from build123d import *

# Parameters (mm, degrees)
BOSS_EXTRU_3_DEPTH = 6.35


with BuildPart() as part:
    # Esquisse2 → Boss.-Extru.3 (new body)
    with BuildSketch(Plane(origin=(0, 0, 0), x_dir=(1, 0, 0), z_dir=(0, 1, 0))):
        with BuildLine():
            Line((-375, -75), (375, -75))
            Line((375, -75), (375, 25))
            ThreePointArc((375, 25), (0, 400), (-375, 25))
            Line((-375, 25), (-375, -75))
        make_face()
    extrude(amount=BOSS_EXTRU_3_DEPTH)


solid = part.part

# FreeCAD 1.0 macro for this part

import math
import FreeCAD as App
import Part
import Sketcher
from FreeCAD import Vector

doc = App.newDocument("Part")
params = doc.addObject("Spreadsheet::Sheet", "Params")
for row, (alias, value) in enumerate([
    ("sketch1_radius", "375 mm"),
    ("sketch1_height", "100 mm"),
    ("pad1_length", "6.35 mm"),
], start=1):
    params.set(f"A{row}", alias)
    params.set(f"B{row}", "=" + value)
    params.setAlias(f"B{row}", alias)

body = doc.addObject("PartDesign::Body", "Body")

sketch1 = body.newObject("Sketcher::SketchObject", "Sketch")
sketch1.AttachmentSupport = (doc.getObject("XZ_Plane"), [""])
sketch1.MapMode = "FlatFace"
sketch1.addGeometry([
    Part.LineSegment(Vector(-375, 75, 0), Vector(375, 75, 0)),
    Part.LineSegment(Vector(375, 75, 0), Vector(375, -25, 0)),
    Part.ArcOfCircle(Part.Circle(Vector(0, -25, 0), Vector(0, 0, 1), 375), math.radians(180), math.radians(360)),
    Part.LineSegment(Vector(-375, -25, 0), Vector(-375, 75, 0)),
], False)
sketch1.addConstraint([
    Sketcher.Constraint("Coincident", 0, 2, 1, 1),
    Sketcher.Constraint("Tangent", 1, 2, 2, 2),
    Sketcher.Constraint("Tangent", 2, 1, 3, 1),
    Sketcher.Constraint("Coincident", 3, 2, 0, 1),
    Sketcher.Constraint("Horizontal", 0),
    Sketcher.Constraint("Vertical", 1),
    Sketcher.Constraint("Vertical", 3),
    Sketcher.Constraint("PointOnObject", 2, 3, -2),
    Sketcher.Constraint("Radius", 2, 375.0),
    Sketcher.Constraint("DistanceY", 1, 2, 1, 1, 100.0),
    Sketcher.Constraint("DistanceY", 2, 3, -1, 1, 25.0),
])
sketch1.setExpression("Constraints[8]", "Params.sketch1_radius")
sketch1.setExpression("Constraints[9]", "Params.sketch1_height")
pad1 = body.newObject("PartDesign::Pad", "Pad")
pad1.Profile = sketch1
pad1.setExpression("Length", "Params.pad1_length")
pad1.Reversed = True

doc.recompute()
